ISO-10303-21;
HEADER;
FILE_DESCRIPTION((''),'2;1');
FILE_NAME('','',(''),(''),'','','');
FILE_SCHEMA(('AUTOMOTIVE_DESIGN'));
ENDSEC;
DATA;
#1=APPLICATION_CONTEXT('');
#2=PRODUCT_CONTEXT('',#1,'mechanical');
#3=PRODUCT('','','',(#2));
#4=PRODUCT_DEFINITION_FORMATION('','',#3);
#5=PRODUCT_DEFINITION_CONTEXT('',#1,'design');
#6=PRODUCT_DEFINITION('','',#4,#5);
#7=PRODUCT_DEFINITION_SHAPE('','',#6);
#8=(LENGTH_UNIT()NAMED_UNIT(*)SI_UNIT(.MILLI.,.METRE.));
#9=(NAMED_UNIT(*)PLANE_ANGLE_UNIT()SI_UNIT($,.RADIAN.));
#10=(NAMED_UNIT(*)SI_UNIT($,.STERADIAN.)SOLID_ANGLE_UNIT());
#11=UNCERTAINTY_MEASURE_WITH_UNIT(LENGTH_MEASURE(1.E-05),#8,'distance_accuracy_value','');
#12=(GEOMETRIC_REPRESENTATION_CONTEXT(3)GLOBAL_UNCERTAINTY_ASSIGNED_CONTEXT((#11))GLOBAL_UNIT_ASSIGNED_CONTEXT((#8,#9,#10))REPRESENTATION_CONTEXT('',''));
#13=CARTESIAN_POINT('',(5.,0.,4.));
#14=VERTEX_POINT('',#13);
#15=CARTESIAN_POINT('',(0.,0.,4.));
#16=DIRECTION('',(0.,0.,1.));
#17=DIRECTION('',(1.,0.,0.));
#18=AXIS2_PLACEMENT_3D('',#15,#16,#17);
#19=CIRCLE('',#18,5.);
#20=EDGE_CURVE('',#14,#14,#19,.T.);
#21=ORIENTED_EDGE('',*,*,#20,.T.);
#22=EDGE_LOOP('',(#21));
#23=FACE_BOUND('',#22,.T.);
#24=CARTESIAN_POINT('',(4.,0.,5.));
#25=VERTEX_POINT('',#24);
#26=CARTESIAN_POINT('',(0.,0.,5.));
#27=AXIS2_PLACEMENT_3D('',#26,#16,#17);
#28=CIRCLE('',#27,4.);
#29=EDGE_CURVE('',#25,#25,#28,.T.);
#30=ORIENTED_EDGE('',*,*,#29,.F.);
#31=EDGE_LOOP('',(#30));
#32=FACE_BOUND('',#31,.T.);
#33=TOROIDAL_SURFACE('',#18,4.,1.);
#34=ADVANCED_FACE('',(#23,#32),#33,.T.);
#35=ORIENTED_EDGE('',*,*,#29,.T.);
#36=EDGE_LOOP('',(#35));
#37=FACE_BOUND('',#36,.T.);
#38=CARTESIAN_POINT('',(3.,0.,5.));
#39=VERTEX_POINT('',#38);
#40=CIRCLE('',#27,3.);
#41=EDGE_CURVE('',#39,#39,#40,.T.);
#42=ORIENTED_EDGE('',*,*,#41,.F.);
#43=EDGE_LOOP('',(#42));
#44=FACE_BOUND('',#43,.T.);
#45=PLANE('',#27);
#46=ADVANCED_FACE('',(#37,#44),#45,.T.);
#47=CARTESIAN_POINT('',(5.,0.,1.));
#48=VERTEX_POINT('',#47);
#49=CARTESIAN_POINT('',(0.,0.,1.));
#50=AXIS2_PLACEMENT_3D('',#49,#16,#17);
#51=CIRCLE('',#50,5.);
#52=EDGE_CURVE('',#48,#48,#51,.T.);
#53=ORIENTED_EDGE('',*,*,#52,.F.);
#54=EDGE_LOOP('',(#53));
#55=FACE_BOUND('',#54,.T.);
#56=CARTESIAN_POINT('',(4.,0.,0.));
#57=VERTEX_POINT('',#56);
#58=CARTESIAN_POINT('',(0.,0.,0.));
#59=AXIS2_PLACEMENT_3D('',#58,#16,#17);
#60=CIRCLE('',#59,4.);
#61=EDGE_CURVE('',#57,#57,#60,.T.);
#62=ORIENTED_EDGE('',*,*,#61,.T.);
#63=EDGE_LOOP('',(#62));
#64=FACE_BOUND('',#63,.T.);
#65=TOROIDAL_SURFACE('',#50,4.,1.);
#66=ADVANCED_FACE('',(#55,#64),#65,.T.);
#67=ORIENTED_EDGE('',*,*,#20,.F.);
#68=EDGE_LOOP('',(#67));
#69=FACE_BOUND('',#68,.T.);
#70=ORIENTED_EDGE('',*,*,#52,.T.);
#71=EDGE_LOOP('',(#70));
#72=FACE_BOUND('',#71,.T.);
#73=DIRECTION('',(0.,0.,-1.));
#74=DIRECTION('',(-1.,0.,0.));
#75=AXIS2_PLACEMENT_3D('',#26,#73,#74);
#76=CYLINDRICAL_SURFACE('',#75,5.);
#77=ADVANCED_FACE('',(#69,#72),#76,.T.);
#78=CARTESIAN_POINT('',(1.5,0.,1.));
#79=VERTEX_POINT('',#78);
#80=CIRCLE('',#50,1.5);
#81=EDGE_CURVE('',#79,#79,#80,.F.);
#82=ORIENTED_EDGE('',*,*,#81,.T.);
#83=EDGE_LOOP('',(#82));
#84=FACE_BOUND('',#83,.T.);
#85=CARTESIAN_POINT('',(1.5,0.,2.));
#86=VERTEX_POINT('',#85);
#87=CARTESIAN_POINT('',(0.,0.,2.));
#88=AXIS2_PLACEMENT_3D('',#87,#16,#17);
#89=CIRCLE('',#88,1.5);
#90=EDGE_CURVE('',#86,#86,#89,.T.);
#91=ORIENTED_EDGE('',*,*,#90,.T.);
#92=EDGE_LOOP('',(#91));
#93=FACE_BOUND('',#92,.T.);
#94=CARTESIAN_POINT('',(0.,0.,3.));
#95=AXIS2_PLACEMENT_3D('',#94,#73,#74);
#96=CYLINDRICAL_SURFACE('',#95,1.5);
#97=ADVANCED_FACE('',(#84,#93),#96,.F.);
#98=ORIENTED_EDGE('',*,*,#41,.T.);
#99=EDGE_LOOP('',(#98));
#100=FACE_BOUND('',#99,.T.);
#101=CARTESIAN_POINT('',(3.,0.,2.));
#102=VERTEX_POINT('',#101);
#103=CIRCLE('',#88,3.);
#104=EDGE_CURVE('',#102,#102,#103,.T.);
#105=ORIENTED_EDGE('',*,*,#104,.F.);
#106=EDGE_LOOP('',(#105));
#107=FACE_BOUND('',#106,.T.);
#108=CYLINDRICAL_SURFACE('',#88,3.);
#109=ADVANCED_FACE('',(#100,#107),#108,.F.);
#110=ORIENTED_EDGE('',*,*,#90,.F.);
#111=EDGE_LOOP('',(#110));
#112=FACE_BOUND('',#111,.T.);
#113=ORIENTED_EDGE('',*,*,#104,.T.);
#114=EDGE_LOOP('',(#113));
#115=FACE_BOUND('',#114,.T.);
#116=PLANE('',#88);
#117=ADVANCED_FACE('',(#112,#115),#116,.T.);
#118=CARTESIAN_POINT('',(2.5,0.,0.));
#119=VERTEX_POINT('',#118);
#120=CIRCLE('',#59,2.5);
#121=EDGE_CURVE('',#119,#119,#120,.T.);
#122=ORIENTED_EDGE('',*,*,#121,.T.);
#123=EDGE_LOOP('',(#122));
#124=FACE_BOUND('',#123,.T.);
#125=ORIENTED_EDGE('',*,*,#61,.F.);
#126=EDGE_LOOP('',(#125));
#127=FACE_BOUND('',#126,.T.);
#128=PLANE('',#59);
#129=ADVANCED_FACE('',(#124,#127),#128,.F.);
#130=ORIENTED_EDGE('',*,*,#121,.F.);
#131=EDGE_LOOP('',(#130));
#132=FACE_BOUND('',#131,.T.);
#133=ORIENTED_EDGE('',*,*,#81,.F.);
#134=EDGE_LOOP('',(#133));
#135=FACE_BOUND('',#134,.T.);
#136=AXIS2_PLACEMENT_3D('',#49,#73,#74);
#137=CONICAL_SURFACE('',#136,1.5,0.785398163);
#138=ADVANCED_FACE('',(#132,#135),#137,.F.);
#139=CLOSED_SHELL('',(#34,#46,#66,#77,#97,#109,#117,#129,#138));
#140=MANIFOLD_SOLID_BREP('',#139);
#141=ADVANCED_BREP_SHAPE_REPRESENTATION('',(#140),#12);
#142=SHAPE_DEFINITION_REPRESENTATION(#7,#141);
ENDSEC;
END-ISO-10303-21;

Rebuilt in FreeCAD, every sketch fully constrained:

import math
import FreeCAD as App
import Part
import Sketcher

V = App.Vector


def edges_at(feature, points):
    """Names of the edges that pass closest to the given points."""
    edges = feature.Shape.Edges
    near = lambda p: min(range(len(edges)), key=lambda i: edges[i].distToShape(Part.Vertex(*p))[0])
    return sorted({f"Edge{near(p) + 1}" for p in points})

doc = App.newDocument("Part")
body = doc.addObject("PartDesign::Body", "Body")

# Sketch on XY plane
sketch1 = body.newObject("Sketcher::SketchObject", "Sketch")
sketch1.AttachmentSupport = (doc.getObject("XY_Plane"), [""])
sketch1.MapMode = "FlatFace"
sketch1.addGeometry(Part.Circle(V(0, 0, 0), V(0, 0, 1), 5), False)
sketch1.addConstraint([
    Sketcher.Constraint("Coincident", 0, 3, -1, 1),
    Sketcher.Constraint("Diameter", 0, 10.0),
])
pad1 = body.newObject("PartDesign::Pad", "Pad")
pad1.Profile = sketch1
pad1.Length = 5

# Sketch on XY plane
sketch2 = body.newObject("Sketcher::SketchObject", "Sketch001")
sketch2.AttachmentSupport = (doc.getObject("XY_Plane"), [""])
sketch2.MapMode = "FlatFace"
sketch2.AttachmentOffset = App.Placement(V(0, 0, 5), App.Rotation())
sketch2.addGeometry(Part.Circle(V(0, 0, 0), V(0, 0, 1), 3), False)
sketch2.addConstraint([
    Sketcher.Constraint("Coincident", 0, 3, -1, 1),
    Sketcher.Constraint("Diameter", 0, 6.0),
])
pocket1 = body.newObject("PartDesign::Pocket", "Pocket")
pocket1.Profile = sketch2
pocket1.Length = 3

# Sketch on YZ plane
sketch3 = body.newObject("Sketcher::SketchObject", "Sketch002")
sketch3.AttachmentSupport = (doc.getObject("YZ_Plane"), [""])
sketch3.MapMode = "FlatFace"
sketch3.addGeometry([
    Part.LineSegment(V(5, 0, 0), V(5, 1, 0)),  # 0
    Part.ArcOfCircle(Part.Circle(V(4, 1, 0), V(0, 0, 1), 1), math.radians(-90), math.radians(0)),  # 1
    Part.LineSegment(V(4, 0, 0), V(5, 0, 0)),  # 2
    Part.LineSegment(V(5, 4, 0), V(5, 5, 0)),  # 3
    Part.LineSegment(V(5, 5, 0), V(4, 5, 0)),  # 4
    Part.ArcOfCircle(Part.Circle(V(4, 4, 0), V(0, 0, 1), 1), math.radians(0), math.radians(90)),  # 5
], False)
sketch3.addConstraint([
    Sketcher.Constraint("Tangent", 0, 2, 1, 2),
    Sketcher.Constraint("Tangent", 1, 1, 2, 1),
    Sketcher.Constraint("Coincident", 2, 2, 0, 1),
    Sketcher.Constraint("Coincident", 3, 2, 4, 1),
    Sketcher.Constraint("Tangent", 4, 2, 5, 2),
    Sketcher.Constraint("Tangent", 5, 1, 3, 1),
    Sketcher.Constraint("Vertical", 0),
    Sketcher.Constraint("Horizontal", 2),
    Sketcher.Constraint("Vertical", 3),
    Sketcher.Constraint("Horizontal", 4),
    Sketcher.Constraint("Equal", 1, 5),
    Sketcher.Constraint("PointOnObject", 1, 1, -1),
    Sketcher.Constraint("Vertical", 1, 3, 5, 3),
    Sketcher.Constraint("Radius", 1, 1.0),
    Sketcher.Constraint("DistanceX", -1, 1, 1, 3, 4.0),
    Sketcher.Constraint("DistanceY", -1, 1, 5, 3, 4.0),
])
groove = body.newObject("PartDesign::Groove", "Groove")
groove.Profile = sketch3
groove.ReferenceAxis = (sketch3, ["V_Axis"])
groove.Angle = 360

# Sketch on XY plane
sketch4 = body.newObject("Sketcher::SketchObject", "Sketch003")
sketch4.AttachmentSupport = (doc.getObject("XY_Plane"), [""])
sketch4.MapMode = "FlatFace"
sketch4.addGeometry(Part.Circle(V(0, 0, 0), V(0, 0, 1), 1.5), False)
sketch4.addConstraint([
    Sketcher.Constraint("Coincident", 0, 3, -1, 1),
    Sketcher.Constraint("Diameter", 0, 3.0),
])
pocket2 = body.newObject("PartDesign::Pocket", "Pocket001")
pocket2.Profile = sketch4
pocket2.Length = 3
pocket2.Reversed = True
doc.recompute()

chamfer = body.newObject("PartDesign::Chamfer", "Chamfer")
chamfer.Base = (pocket2, edges_at(pocket2, [(1.5, 0, 0)]))
chamfer.Size = 1

doc.recompute()
